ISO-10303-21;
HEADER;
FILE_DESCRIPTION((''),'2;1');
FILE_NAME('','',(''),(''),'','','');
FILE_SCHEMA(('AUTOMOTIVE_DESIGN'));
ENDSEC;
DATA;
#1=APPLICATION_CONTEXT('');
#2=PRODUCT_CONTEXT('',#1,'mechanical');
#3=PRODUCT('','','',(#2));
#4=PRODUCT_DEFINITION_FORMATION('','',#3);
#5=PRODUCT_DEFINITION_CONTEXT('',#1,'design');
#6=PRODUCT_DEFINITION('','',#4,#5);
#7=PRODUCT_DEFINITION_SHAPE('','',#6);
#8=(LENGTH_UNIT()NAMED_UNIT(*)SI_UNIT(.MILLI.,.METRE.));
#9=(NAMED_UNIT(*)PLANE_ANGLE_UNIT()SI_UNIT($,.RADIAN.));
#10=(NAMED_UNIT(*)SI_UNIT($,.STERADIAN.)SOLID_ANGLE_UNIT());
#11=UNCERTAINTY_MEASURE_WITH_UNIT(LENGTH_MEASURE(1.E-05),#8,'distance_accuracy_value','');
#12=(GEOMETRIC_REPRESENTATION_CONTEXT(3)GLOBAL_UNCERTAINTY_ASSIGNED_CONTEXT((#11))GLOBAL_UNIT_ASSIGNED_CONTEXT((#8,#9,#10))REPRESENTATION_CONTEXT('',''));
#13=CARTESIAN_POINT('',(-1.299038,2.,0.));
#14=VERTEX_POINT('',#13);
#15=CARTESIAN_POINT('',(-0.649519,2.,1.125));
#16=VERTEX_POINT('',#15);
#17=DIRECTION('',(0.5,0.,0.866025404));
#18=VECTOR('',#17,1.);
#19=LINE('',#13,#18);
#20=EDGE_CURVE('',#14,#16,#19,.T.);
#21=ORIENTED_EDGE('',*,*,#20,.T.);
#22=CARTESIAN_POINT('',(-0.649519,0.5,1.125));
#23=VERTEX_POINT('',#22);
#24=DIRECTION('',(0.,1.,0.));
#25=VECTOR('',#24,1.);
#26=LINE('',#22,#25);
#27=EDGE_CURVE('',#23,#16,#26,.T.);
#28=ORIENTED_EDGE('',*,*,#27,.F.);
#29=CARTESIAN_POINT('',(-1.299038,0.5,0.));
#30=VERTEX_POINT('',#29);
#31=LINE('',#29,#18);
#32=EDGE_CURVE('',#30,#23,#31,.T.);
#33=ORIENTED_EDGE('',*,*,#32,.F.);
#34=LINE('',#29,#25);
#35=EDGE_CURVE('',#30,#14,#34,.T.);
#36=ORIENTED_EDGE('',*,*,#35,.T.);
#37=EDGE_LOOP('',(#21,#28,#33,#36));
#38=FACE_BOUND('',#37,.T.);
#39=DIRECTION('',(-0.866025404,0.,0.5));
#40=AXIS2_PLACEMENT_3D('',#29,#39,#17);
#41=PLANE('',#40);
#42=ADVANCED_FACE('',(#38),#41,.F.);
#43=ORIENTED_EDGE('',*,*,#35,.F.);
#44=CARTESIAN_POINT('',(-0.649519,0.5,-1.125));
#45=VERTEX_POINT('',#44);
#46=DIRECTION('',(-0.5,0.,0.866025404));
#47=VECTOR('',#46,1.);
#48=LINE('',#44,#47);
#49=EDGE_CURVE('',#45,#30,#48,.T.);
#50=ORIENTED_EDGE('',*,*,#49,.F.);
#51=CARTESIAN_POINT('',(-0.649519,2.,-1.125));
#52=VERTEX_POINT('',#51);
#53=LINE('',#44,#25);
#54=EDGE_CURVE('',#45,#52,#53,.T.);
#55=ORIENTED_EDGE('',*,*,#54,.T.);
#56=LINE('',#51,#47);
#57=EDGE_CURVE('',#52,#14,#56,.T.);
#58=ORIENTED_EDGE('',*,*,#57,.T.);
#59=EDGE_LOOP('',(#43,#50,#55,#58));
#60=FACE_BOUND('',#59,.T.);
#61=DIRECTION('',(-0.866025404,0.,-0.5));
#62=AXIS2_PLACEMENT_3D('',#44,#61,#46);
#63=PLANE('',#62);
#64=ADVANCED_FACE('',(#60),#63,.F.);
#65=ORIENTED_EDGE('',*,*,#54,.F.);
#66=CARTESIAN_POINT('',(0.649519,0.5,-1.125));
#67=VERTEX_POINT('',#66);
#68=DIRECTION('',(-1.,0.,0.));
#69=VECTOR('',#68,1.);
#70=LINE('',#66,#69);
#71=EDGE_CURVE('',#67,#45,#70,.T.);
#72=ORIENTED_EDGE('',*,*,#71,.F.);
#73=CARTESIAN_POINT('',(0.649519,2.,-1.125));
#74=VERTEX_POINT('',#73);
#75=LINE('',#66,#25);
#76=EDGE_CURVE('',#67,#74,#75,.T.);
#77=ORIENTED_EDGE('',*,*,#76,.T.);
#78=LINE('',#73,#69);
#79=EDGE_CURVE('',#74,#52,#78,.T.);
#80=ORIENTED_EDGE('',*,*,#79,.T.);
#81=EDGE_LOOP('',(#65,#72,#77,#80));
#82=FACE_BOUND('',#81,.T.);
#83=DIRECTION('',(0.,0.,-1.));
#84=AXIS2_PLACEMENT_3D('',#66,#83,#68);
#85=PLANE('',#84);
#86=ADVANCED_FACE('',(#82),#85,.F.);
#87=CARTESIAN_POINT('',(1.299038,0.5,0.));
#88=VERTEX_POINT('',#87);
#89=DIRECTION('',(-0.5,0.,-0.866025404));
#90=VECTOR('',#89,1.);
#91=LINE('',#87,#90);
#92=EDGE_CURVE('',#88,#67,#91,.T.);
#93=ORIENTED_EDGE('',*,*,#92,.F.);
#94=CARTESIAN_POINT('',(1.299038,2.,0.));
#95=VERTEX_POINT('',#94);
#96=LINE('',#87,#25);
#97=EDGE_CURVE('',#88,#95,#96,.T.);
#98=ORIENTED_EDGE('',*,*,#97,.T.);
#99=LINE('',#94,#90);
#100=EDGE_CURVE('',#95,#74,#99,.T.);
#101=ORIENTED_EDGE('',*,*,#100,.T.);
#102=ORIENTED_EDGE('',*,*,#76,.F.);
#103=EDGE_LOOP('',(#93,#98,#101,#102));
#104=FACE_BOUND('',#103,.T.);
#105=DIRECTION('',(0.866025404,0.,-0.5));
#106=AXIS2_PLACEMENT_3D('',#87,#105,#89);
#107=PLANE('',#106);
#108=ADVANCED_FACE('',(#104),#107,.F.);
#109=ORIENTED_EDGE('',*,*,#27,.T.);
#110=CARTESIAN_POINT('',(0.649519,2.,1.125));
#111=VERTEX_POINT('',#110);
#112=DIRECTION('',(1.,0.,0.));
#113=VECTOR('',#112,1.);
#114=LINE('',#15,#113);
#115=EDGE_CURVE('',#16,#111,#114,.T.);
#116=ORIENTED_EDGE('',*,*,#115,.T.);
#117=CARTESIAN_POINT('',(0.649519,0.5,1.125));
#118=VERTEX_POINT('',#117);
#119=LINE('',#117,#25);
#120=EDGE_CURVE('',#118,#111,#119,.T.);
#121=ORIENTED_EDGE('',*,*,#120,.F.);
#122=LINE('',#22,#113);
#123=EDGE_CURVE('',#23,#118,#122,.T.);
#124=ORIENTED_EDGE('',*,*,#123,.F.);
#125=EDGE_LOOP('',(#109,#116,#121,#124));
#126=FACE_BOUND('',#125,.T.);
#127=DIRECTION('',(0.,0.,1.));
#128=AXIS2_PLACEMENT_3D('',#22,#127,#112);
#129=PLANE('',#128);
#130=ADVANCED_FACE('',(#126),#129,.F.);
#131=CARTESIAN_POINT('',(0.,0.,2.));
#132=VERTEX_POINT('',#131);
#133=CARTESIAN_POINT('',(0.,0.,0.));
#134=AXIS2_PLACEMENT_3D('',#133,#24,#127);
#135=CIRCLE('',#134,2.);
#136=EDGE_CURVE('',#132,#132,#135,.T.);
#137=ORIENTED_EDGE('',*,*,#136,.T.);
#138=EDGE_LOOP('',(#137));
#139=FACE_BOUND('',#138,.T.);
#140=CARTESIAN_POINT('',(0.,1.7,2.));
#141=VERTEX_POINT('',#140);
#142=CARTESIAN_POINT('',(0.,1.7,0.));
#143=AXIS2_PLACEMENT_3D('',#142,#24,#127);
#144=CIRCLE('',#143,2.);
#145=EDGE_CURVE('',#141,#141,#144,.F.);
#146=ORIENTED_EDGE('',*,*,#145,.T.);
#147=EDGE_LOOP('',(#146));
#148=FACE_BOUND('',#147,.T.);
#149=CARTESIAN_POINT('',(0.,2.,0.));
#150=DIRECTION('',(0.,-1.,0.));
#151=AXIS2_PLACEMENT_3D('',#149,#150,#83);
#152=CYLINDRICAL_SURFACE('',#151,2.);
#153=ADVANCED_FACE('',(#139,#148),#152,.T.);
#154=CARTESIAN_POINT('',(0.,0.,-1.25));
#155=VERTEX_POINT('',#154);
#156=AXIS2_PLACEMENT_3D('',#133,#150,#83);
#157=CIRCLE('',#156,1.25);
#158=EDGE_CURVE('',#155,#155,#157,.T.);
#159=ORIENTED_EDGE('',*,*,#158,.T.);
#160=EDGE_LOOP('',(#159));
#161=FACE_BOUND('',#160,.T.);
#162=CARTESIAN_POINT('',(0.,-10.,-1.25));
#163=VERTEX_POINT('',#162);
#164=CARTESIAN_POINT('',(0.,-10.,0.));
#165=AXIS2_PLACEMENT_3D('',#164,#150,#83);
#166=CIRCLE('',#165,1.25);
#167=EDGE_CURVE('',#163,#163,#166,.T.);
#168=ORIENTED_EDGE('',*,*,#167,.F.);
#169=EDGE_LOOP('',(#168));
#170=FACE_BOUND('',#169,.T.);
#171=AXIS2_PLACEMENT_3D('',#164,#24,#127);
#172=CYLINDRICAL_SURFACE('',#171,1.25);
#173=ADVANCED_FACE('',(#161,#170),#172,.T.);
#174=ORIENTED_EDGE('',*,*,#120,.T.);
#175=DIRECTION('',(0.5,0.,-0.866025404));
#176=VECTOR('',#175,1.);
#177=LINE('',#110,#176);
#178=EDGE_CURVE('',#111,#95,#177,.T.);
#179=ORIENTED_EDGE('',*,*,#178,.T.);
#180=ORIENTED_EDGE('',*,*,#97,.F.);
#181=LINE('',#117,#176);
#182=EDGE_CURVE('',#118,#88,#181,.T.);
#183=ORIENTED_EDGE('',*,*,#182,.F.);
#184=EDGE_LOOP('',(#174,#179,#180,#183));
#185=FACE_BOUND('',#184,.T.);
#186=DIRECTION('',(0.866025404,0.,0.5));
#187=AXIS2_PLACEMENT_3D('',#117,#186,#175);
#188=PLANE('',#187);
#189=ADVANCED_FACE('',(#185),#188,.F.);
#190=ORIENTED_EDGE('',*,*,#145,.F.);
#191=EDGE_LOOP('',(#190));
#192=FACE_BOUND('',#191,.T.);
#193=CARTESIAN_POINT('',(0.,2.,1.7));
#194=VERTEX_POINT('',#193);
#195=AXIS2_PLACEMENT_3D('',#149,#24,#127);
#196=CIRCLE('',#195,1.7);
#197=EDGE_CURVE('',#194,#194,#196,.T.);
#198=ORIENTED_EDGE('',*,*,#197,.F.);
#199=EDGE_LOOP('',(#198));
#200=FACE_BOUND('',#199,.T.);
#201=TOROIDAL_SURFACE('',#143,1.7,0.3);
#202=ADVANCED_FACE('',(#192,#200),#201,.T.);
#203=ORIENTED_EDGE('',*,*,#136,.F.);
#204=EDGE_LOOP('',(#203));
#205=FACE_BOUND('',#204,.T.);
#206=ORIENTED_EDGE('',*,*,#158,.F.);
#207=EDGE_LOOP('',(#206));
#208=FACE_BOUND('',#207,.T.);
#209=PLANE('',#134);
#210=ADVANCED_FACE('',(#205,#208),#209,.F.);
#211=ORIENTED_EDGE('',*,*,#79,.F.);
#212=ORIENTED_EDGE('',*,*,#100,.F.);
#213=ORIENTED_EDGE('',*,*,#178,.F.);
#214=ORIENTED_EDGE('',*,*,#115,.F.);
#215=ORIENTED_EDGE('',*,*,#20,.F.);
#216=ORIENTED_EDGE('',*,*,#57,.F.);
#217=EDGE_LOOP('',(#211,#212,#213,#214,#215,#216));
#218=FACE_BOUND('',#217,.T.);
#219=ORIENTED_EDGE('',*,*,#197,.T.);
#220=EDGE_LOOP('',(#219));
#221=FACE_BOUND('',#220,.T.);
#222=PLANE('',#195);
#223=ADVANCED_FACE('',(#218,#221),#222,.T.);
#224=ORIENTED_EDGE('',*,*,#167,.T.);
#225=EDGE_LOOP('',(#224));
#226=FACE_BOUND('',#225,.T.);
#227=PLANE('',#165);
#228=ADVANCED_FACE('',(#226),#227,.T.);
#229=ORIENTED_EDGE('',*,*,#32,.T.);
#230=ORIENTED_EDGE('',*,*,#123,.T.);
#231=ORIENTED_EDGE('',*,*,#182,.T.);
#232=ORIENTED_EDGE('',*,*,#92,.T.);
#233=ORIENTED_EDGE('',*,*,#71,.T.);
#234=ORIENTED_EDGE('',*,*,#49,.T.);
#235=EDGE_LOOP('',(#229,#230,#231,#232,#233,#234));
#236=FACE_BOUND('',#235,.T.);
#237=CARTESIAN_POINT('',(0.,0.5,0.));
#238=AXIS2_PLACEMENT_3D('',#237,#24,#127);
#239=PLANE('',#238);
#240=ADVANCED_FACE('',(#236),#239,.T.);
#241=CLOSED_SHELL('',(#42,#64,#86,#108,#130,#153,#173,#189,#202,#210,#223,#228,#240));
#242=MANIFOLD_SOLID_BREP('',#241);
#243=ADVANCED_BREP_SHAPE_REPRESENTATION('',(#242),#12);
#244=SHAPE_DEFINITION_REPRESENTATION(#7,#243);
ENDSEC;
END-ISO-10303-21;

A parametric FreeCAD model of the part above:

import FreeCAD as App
import Part
import Sketcher
from FreeCAD import Vector
Q = App.Units.Quantity


def edges_at(feature, points):
    """Names of the edges that pass closest to the given points."""
    edges = feature.Shape.Edges
    near = lambda p: min(range(len(edges)), key=lambda i: edges[i].distToShape(Part.Vertex(*p))[0])
    return sorted({f"Edge{near(p) + 1}" for p in points})


def add_polygon(sketch, points):
    """Adds a closed chain of lines whose ends are joined by coincident constraints."""
    first, n = sketch.GeometryCount, len(points)
    for a, b in zip(points, points[1:] + points[:1]):
        sketch.addGeometry(Part.LineSegment(App.Vector(*a, 0), App.Vector(*b, 0)), False)
    for i in range(n):
        sketch.addConstraint(Sketcher.Constraint("Coincident", first + i, 2, first + (i + 1) % n, 1))

doc = App.newDocument("Part")
params = doc.addObject("Spreadsheet::Sheet", "Params")
for row, (alias, value) in enumerate([
    ("sketch1_diameter", "4 mm"),
    ("pad1_length", "2 mm"),
    ("sketch2_diameter", "2.5 mm"),
    ("pad2_length", "10 mm"),
    ("fillet_radius", "0.3 mm"),
    ("pocket1_length", "1.5 mm"),
], start=1):
    params.set(f"A{row}", alias)
    params.set(f"B{row}", "=" + value)
    params.setAlias(f"B{row}", alias)

body = doc.addObject("PartDesign::Body", "Body")

sketch1 = doc.addObject("Sketcher::SketchObject", "Sketch")
body.addObject(sketch1)
sketch1.AttachmentSupport = (doc.XZ_Plane, [""])
sketch1.MapMode = "FlatFace"
sketch1.addGeometry(Part.Circle(Vector(0, 0, 0), Vector(0, 0, 1), 2), False)
sketch1.addConstraint([
    Sketcher.Constraint("Coincident", 0, 3, -1, 1),
    Sketcher.Constraint("Diameter", 0, 4.0),
])
sketch1.setExpression("Constraints[1]", "Params.sketch1_diameter")
pad1 = doc.addObject("PartDesign::Pad", "Pad")
body.addObject(pad1)
pad1.Profile = sketch1
pad1.setExpression("Length", "Params.pad1_length")
pad1.Reversed = True

sketch2 = doc.addObject("Sketcher::SketchObject", "Sketch001")
body.addObject(sketch2)
sketch2.AttachmentSupport = (doc.XZ_Plane, [""])
sketch2.MapMode = "FlatFace"
sketch2.addGeometry(Part.Circle(Vector(0, 0, 0), Vector(0, 0, 1), 1.2), False)
sketch2.addConstraint([
    Sketcher.Constraint("Coincident", 0, 3, -1, 1),
    Sketcher.Constraint("Diameter", 0, 2.5),
])
sketch2.setExpression("Constraints[1]", "Params.sketch2_diameter")
pad2 = doc.addObject("PartDesign::Pad", "Pad001")
body.addObject(pad2)
pad2.Profile = sketch2
pad2.setExpression("Length", "Params.pad2_length")
doc.recompute()

fillet = doc.addObject("PartDesign::Fillet", "Fillet")
body.addObject(fillet)
fillet.Base = (pad2, edges_at(pad2, [(-2, 2, 0)]))
fillet.setExpression("Radius", "Params.fillet_radius")

sketch3 = doc.addObject("Sketcher::SketchObject", "Sketch002")
body.addObject(sketch3)
sketch3.AttachmentSupport = (doc.XZ_Plane, [""])
sketch3.MapMode = "FlatFace"
sketch3.AttachmentOffset = App.Placement(Vector(0, 0, -2), App.Rotation())
add_polygon(sketch3, [(1.3, 0), (0.6, -1.1), (-0.6, -1.1), (-1.3, 0), (-0.6, 1.1), (0.6, 1.1)])
sketch3.addConstraint([
    Sketcher.Constraint("Horizontal", 1),
    Sketcher.Constraint("Horizontal", 4),
    Sketcher.Constraint("Symmetric", 0, 2, 3, 2, -1, 1),
    Sketcher.Constraint("Symmetric", 2, 2, 5, 2, -1, 1),
    Sketcher.Constraint("PointOnObject", 2, 2, -1),
    Sketcher.Constraint("Parallel", 2, 5),
    Sketcher.Constraint("Vertical", 1, 2, 3, 2),
    Sketcher.Constraint("Angle", 0, Q("-120 deg")),
    Sketcher.Constraint("DistanceY", 1, 2, 3, 2, 2.25),
    Sketcher.Constraint("DistanceX", 1, 2, 1, 1, 1.299038),
])
pocket1 = doc.addObject("PartDesign::Pocket", "Pocket")
body.addObject(pocket1)
pocket1.Profile = sketch3
pocket1.setExpression("Length", "Params.pocket1_length")
pocket1.Reversed = True

doc.recompute()
